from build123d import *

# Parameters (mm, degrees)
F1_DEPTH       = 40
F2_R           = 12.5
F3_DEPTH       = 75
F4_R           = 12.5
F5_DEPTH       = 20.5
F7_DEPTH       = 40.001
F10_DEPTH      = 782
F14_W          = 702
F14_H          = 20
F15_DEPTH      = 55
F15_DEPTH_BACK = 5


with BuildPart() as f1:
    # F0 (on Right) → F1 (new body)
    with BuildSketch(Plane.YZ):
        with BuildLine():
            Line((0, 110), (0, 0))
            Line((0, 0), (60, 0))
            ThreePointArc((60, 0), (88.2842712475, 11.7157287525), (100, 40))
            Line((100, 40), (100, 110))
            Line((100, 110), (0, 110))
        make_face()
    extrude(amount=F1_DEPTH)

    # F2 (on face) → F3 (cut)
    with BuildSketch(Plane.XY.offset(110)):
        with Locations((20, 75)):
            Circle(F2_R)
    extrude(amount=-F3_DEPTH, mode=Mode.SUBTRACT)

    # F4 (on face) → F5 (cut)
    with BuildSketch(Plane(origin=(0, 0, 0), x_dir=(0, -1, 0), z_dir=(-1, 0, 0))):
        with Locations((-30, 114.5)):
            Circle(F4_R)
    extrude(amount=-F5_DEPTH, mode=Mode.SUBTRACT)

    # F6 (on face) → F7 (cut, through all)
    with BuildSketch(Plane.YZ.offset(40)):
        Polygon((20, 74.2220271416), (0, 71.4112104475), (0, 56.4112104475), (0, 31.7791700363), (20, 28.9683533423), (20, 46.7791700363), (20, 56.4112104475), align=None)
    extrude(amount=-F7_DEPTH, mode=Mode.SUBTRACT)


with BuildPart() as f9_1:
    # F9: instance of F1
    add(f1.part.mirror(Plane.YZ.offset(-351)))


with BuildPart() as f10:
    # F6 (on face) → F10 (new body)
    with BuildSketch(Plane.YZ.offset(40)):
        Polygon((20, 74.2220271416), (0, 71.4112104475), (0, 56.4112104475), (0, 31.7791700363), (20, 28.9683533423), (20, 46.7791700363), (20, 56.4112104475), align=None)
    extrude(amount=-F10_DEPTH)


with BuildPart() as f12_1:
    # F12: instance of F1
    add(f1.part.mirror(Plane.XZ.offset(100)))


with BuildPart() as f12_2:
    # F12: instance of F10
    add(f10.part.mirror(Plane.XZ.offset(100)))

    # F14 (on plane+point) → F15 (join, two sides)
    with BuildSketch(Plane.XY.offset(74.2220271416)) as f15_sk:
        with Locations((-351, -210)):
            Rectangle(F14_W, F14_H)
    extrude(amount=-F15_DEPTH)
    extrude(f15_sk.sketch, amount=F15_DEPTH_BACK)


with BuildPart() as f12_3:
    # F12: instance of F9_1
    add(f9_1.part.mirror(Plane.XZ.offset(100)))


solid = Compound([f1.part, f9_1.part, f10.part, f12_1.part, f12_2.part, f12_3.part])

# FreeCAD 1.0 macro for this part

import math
import FreeCAD as App
import Part
import Sketcher
Q = App.Units.Quantity

doc = App.newDocument("Part")
body = doc.addObject("PartDesign::Body", "Body")

# Sketch on YZ plane
sketch1 = body.newObject("Sketcher::SketchObject", "Sketch")
sketch1.AttachmentSupport = (doc.getObject("YZ_Plane"), [""])
sketch1.MapMode = "FlatFace"
sketch1.addGeometry(Part.LineSegment(App.Vector(0, 110, 0), App.Vector(0, 0, 0)), False)
sketch1.addGeometry(Part.LineSegment(App.Vector(0, 0, 0), App.Vector(60, 0, 0)), False)
sketch1.addGeometry(Part.ArcOfCircle(Part.Circle(App.Vector(60, 40, 0), App.Vector(0, 0, 1), 40), math.radians(-90), math.radians(0)), False)
sketch1.addGeometry(Part.LineSegment(App.Vector(100, 40, 0), App.Vector(100, 110, 0)), False)
sketch1.addGeometry(Part.LineSegment(App.Vector(100, 110, 0), App.Vector(0, 110, 0)), False)
sketch1.addConstraint(Sketcher.Constraint("Coincident", 0, 2, 1, 1))
sketch1.addConstraint(Sketcher.Constraint("Tangent", 1, 2, 2, 1))
sketch1.addConstraint(Sketcher.Constraint("Tangent", 2, 2, 3, 1))
sketch1.addConstraint(Sketcher.Constraint("Coincident", 3, 2, 4, 1))
sketch1.addConstraint(Sketcher.Constraint("Coincident", 4, 2, 0, 1))
sketch1.addConstraint(Sketcher.Constraint("Vertical", 0))
sketch1.addConstraint(Sketcher.Constraint("Horizontal", 1))
sketch1.addConstraint(Sketcher.Constraint("Vertical", 3))
sketch1.addConstraint(Sketcher.Constraint("Horizontal", 4))
sketch1.addConstraint(Sketcher.Constraint("Coincident", 0, 2, -1, 1))
sketch1.addConstraint(Sketcher.Constraint("Radius", 2, 40.0))
sketch1.addConstraint(Sketcher.Constraint("DistanceX", 1, 1, 1, 2, 60.0))
sketch1.addConstraint(Sketcher.Constraint("DistanceY", 0, 2, 0, 1, 110.0))
pad1 = body.newObject("PartDesign::Pad", "Pad")
pad1.Profile = sketch1
pad1.Length = 40

# Sketch on XY plane
sketch2 = body.newObject("Sketcher::SketchObject", "Sketch001")
sketch2.AttachmentSupport = (doc.getObject("XY_Plane"), [""])
sketch2.MapMode = "FlatFace"
sketch2.AttachmentOffset = App.Placement(App.Vector(0, 0, 110), App.Rotation())
sketch2.addGeometry(Part.Circle(App.Vector(20, 75, 0), App.Vector(0, 0, 1), 12), False)
sketch2.addConstraint(Sketcher.Constraint("Diameter", 0, 25.0))
sketch2.addConstraint(Sketcher.Constraint("DistanceX", -1, 1, 0, 3, 20.0))
sketch2.addConstraint(Sketcher.Constraint("DistanceY", -1, 1, 0, 3, 75.0))
pocket1 = body.newObject("PartDesign::Pocket", "Pocket")
pocket1.Profile = sketch2
pocket1.Length = 75

# Sketch on YZ plane
sketch3 = body.newObject("Sketcher::SketchObject", "Sketch002")
sketch3.AttachmentSupport = (doc.getObject("YZ_Plane"), [""])
sketch3.MapMode = "FlatFace"
sketch3.addGeometry(Part.Circle(App.Vector(30, 114, 0), App.Vector(0, 0, 1), 12), False)
sketch3.addConstraint(Sketcher.Constraint("Diameter", 0, 25.0))
sketch3.addConstraint(Sketcher.Constraint("DistanceX", -1, 1, 0, 3, 30.0))
sketch3.addConstraint(Sketcher.Constraint("DistanceY", -1, 1, 0, 3, 114.5))
pocket2 = body.newObject("PartDesign::Pocket", "Pocket001")
pocket2.Profile = sketch3
pocket2.Length = 20.5
pocket2.Reversed = True

# Sketch on YZ plane
sketch4 = body.newObject("Sketcher::SketchObject", "Sketch003")
sketch4.AttachmentSupport = (doc.getObject("YZ_Plane"), [""])
sketch4.MapMode = "FlatFace"
sketch4.AttachmentOffset = App.Placement(App.Vector(0, 0, 40), App.Rotation())
sketch4.addGeometry(Part.LineSegment(App.Vector(20, 74, 0), App.Vector(0, 71, 0)), False)
sketch4.addGeometry(Part.LineSegment(App.Vector(0, 71, 0), App.Vector(0, 32, 0)), False)
sketch4.addGeometry(Part.LineSegment(App.Vector(0, 32, 0), App.Vector(20, 29, 0)), False)
sketch4.addGeometry(Part.LineSegment(App.Vector(20, 29, 0), App.Vector(20, 74, 0)), False)
sketch4.addConstraint(Sketcher.Constraint("Coincident", 0, 2, 1, 1))
sketch4.addConstraint(Sketcher.Constraint("Coincident", 1, 2, 2, 1))
sketch4.addConstraint(Sketcher.Constraint("Coincident", 2, 2, 3, 1))
sketch4.addConstraint(Sketcher.Constraint("Coincident", 3, 2, 0, 1))
sketch4.addConstraint(Sketcher.Constraint("Vertical", 1))
sketch4.addConstraint(Sketcher.Constraint("Vertical", 3))
sketch4.addConstraint(Sketcher.Constraint("PointOnObject", 0, 2, -2))
sketch4.addConstraint(Sketcher.Constraint("Equal", 0, 2))
sketch4.addConstraint(Sketcher.Constraint("Angle", 0, Q("-172 deg")))
sketch4.addConstraint(Sketcher.Constraint("DistanceX", -1, 1, 2, 2, 20.0))
sketch4.addConstraint(Sketcher.Constraint("DistanceY", 1, 2, 1, 1, 39.63204))
sketch4.addConstraint(Sketcher.Constraint("DistanceY", -1, 1, 0, 2, 71.41121))
pocket3 = body.newObject("PartDesign::Pocket", "Pocket002")
pocket3.Profile = sketch4
pocket3.Type = "ThroughAll"
body2 = doc.addObject("PartDesign::Body", "Body001")
doc.recompute()

mirroring = doc.addObject("Part::Mirroring", "Mirroring")
mirroring.Source = body
mirroring.Base = App.Vector(-351, 0, 0)
mirroring.Normal = App.Vector(1, 0, 0)
body2.BaseFeature = mirroring
doc.recompute()
body3 = doc.addObject("PartDesign::Body", "Body002")

# Sketch on YZ plane
sketch5 = body3.newObject("Sketcher::SketchObject", "Sketch004")
sketch5.AttachmentSupport = (doc.getObject("YZ_Plane002"), [""])
sketch5.MapMode = "FlatFace"
sketch5.AttachmentOffset = App.Placement(App.Vector(0, 0, 40), App.Rotation())
sketch5.addGeometry(Part.LineSegment(App.Vector(20, 74, 0), App.Vector(0, 71, 0)), False)
sketch5.addGeometry(Part.LineSegment(App.Vector(0, 71, 0), App.Vector(0, 32, 0)), False)
sketch5.addGeometry(Part.LineSegment(App.Vector(0, 32, 0), App.Vector(20, 29, 0)), False)
sketch5.addGeometry(Part.LineSegment(App.Vector(20, 29, 0), App.Vector(20, 74, 0)), False)
sketch5.addConstraint(Sketcher.Constraint("Coincident", 0, 2, 1, 1))
sketch5.addConstraint(Sketcher.Constraint("Coincident", 1, 2, 2, 1))
sketch5.addConstraint(Sketcher.Constraint("Coincident", 2, 2, 3, 1))
sketch5.addConstraint(Sketcher.Constraint("Coincident", 3, 2, 0, 1))
sketch5.addConstraint(Sketcher.Constraint("Vertical", 1))
sketch5.addConstraint(Sketcher.Constraint("Vertical", 3))
sketch5.addConstraint(Sketcher.Constraint("PointOnObject", 0, 2, -2))
sketch5.addConstraint(Sketcher.Constraint("Equal", 0, 2))
sketch5.addConstraint(Sketcher.Constraint("Angle", 0, Q("-172 deg")))
sketch5.addConstraint(Sketcher.Constraint("DistanceX", -1, 1, 2, 2, 20.0))
sketch5.addConstraint(Sketcher.Constraint("DistanceY", 1, 2, 1, 1, 39.63204))
sketch5.addConstraint(Sketcher.Constraint("DistanceY", -1, 1, 0, 2, 71.41121))
pad2 = body3.newObject("PartDesign::Pad", "Pad001")
pad2.Profile = sketch5
pad2.Length = 782
pad2.Reversed = True
body4 = doc.addObject("PartDesign::Body", "Body003")
doc.recompute()

mirroring2 = doc.addObject("Part::Mirroring", "Mirroring001")
mirroring2.Source = body
mirroring2.Base = App.Vector(0, -100, 0)
mirroring2.Normal = App.Vector(0, -1, 0)
body4.BaseFeature = mirroring2
doc.recompute()
body5 = doc.addObject("PartDesign::Body", "Body004")
doc.recompute()

mirroring3 = doc.addObject("Part::Mirroring", "Mirroring002")
mirroring3.Source = body3
mirroring3.Base = App.Vector(0, -100, 0)
mirroring3.Normal = App.Vector(0, -1, 0)
body5.BaseFeature = mirroring3
doc.recompute()

# Sketch on XY plane
sketch6 = body5.newObject("Sketcher::SketchObject", "Sketch005")
sketch6.AttachmentSupport = (doc.getObject("XY_Plane004"), [""])
sketch6.MapMode = "FlatFace"
sketch6.AttachmentOffset = App.Placement(App.Vector(0, 0, 74.222027), App.Rotation())
sketch6.addGeometry(Part.LineSegment(App.Vector(-702, -200, 0), App.Vector(-702, -220, 0)), False)
sketch6.addGeometry(Part.LineSegment(App.Vector(-702, -220, 0), App.Vector(0, -220, 0)), False)
sketch6.addGeometry(Part.LineSegment(App.Vector(0, -220, 0), App.Vector(0, -200, 0)), False)
sketch6.addGeometry(Part.LineSegment(App.Vector(0, -200, 0), App.Vector(-702, -200, 0)), False)
sketch6.addConstraint(Sketcher.Constraint("Coincident", 0, 2, 1, 1))
sketch6.addConstraint(Sketcher.Constraint("Coincident", 1, 2, 2, 1))
sketch6.addConstraint(Sketcher.Constraint("Coincident", 2, 2, 3, 1))
sketch6.addConstraint(Sketcher.Constraint("Coincident", 3, 2, 0, 1))
sketch6.addConstraint(Sketcher.Constraint("Vertical", 0))
sketch6.addConstraint(Sketcher.Constraint("Horizontal", 1))
sketch6.addConstraint(Sketcher.Constraint("Vertical", 2))
sketch6.addConstraint(Sketcher.Constraint("Horizontal", 3))
sketch6.addConstraint(Sketcher.Constraint("PointOnObject", 1, 2, -2))
sketch6.addConstraint(Sketcher.Constraint("DistanceX", 1, 1, 1, 2, 702.0))
sketch6.addConstraint(Sketcher.Constraint("DistanceY", 0, 2, 0, 1, 20.0))
sketch6.addConstraint(Sketcher.Constraint("DistanceY", 0, 2, -1, 1, 220.0))
pad3 = body5.newObject("PartDesign::Pad", "Pad002")
pad3.Profile = sketch6
pad3.Type = "TwoLengths"
pad3.Length = 55
pad3.Length2 = 5
pad3.Reversed = True
body6 = doc.addObject("PartDesign::Body", "Body005")
doc.recompute()

mirroring4 = doc.addObject("Part::Mirroring", "Mirroring003")
mirroring4.Source = body2
mirroring4.Base = App.Vector(0, -100, 0)
mirroring4.Normal = App.Vector(0, -1, 0)
body6.BaseFeature = mirroring4
doc.recompute()
mirroring.Visibility = False
mirroring2.Visibility = False
mirroring3.Visibility = False
mirroring4.Visibility = False

doc.recompute()
